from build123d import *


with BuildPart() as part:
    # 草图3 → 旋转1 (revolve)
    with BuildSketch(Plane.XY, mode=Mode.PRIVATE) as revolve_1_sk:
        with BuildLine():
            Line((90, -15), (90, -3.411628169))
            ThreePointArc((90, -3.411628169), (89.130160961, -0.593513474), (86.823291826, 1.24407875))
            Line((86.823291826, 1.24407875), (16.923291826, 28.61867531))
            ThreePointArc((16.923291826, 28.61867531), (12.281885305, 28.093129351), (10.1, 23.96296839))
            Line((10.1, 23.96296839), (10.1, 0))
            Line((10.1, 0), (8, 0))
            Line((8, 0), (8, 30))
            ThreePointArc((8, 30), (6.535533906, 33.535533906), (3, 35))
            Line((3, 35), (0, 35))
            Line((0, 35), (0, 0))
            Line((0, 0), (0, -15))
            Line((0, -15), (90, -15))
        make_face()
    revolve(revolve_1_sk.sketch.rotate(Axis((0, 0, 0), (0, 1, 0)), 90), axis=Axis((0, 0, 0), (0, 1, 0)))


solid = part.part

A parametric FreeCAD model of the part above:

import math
import FreeCAD as App
import Part
import Sketcher
Q = App.Units.Quantity

doc = App.newDocument("Part")
body = doc.addObject("PartDesign::Body", "Body")

sketch1 = body.newObject("Sketcher::SketchObject", "Sketch")
sketch1.AttachmentSupport = (doc.getObject("XY_Plane"), [""])
sketch1.MapMode = "FlatFace"
sketch1.addGeometry([
    Part.LineSegment(App.Vector(90, -15, 0), App.Vector(90, -3.4, 0)),
    Part.ArcOfCircle(Part.Circle(App.Vector(85, -3.4, 0), App.Vector(0, 0, 1), 5), math.radians(0), math.radians(69)),
    Part.LineSegment(App.Vector(86.8, 1.2, 0), App.Vector(16.9, 28.6, 0)),
    Part.ArcOfCircle(Part.Circle(App.Vector(15.1, 24, 0), App.Vector(0, 0, 1), 5), math.radians(69), math.radians(180)),
    Part.LineSegment(App.Vector(10.1, 24, 0), App.Vector(10.1, 0, 0)),
    Part.LineSegment(App.Vector(10.1, 0, 0), App.Vector(8, 0, 0)),
    Part.LineSegment(App.Vector(8, 0, 0), App.Vector(8, 30, 0)),
    Part.ArcOfCircle(Part.Circle(App.Vector(3, 30, 0), App.Vector(0, 0, 1), 5), math.radians(0), math.radians(90)),
    Part.LineSegment(App.Vector(3, 35, 0), App.Vector(0, 35, 0)),
    Part.LineSegment(App.Vector(0, 35, 0), App.Vector(0, -15, 0)),
    Part.LineSegment(App.Vector(0, -15, 0), App.Vector(90, -15, 0)),
], False)
sketch1.addConstraint([
    Sketcher.Constraint("Tangent", 0, 2, 1, 1),
    Sketcher.Constraint("Tangent", 1, 2, 2, 1),
    Sketcher.Constraint("Tangent", 2, 2, 3, 1),
    Sketcher.Constraint("Tangent", 3, 2, 4, 1),
    Sketcher.Constraint("Coincident", 4, 2, 5, 1),
    Sketcher.Constraint("Coincident", 5, 2, 6, 1),
    Sketcher.Constraint("Tangent", 6, 2, 7, 1),
    Sketcher.Constraint("Tangent", 7, 2, 8, 1),
    Sketcher.Constraint("Coincident", 8, 2, 9, 1),
    Sketcher.Constraint("Coincident", 9, 2, 10, 1),
    Sketcher.Constraint("Coincident", 10, 2, 0, 1),
    Sketcher.Constraint("Vertical", 0),
    Sketcher.Constraint("Vertical", 4),
    Sketcher.Constraint("Horizontal", 5),
    Sketcher.Constraint("Vertical", 6),
    Sketcher.Constraint("Horizontal", 8),
    Sketcher.Constraint("Vertical", 9),
    Sketcher.Constraint("Horizontal", 10),
    Sketcher.Constraint("Equal", 1, 3),
    Sketcher.Constraint("Equal", 3, 7),
    Sketcher.Constraint("PointOnObject", 4, 2, -1),
    Sketcher.Constraint("PointOnObject", 8, 2, -2),
    Sketcher.Constraint("Radius", 1, Q("5 mm")),
    Sketcher.Constraint("DistanceX", 8, 2, 8, 1, Q("3 mm")),
    Sketcher.Constraint("DistanceX", 10, 1, 10, 2, Q("90 mm")),
    Sketcher.Constraint("DistanceY", 6, 1, 6, 2, Q("30 mm")),
    Sketcher.Constraint("DistanceY", 9, 2, 9, 1, Q("50 mm")),
    Sketcher.Constraint("DistanceX", 5, 2, 5, 1, Q("2.1 mm")),
    Sketcher.Constraint("DistanceY", 0, 1, 0, 2, Q("11.588372 mm")),
    Sketcher.Constraint("DistanceY", 4, 2, 4, 1, Q("23.962968 mm")),
])
revolution = body.newObject("PartDesign::Revolution", "Revolution")
revolution.Profile = sketch1
revolution.ReferenceAxis = (sketch1, ["V_Axis"])
revolution.Angle = 360

doc.recompute()
